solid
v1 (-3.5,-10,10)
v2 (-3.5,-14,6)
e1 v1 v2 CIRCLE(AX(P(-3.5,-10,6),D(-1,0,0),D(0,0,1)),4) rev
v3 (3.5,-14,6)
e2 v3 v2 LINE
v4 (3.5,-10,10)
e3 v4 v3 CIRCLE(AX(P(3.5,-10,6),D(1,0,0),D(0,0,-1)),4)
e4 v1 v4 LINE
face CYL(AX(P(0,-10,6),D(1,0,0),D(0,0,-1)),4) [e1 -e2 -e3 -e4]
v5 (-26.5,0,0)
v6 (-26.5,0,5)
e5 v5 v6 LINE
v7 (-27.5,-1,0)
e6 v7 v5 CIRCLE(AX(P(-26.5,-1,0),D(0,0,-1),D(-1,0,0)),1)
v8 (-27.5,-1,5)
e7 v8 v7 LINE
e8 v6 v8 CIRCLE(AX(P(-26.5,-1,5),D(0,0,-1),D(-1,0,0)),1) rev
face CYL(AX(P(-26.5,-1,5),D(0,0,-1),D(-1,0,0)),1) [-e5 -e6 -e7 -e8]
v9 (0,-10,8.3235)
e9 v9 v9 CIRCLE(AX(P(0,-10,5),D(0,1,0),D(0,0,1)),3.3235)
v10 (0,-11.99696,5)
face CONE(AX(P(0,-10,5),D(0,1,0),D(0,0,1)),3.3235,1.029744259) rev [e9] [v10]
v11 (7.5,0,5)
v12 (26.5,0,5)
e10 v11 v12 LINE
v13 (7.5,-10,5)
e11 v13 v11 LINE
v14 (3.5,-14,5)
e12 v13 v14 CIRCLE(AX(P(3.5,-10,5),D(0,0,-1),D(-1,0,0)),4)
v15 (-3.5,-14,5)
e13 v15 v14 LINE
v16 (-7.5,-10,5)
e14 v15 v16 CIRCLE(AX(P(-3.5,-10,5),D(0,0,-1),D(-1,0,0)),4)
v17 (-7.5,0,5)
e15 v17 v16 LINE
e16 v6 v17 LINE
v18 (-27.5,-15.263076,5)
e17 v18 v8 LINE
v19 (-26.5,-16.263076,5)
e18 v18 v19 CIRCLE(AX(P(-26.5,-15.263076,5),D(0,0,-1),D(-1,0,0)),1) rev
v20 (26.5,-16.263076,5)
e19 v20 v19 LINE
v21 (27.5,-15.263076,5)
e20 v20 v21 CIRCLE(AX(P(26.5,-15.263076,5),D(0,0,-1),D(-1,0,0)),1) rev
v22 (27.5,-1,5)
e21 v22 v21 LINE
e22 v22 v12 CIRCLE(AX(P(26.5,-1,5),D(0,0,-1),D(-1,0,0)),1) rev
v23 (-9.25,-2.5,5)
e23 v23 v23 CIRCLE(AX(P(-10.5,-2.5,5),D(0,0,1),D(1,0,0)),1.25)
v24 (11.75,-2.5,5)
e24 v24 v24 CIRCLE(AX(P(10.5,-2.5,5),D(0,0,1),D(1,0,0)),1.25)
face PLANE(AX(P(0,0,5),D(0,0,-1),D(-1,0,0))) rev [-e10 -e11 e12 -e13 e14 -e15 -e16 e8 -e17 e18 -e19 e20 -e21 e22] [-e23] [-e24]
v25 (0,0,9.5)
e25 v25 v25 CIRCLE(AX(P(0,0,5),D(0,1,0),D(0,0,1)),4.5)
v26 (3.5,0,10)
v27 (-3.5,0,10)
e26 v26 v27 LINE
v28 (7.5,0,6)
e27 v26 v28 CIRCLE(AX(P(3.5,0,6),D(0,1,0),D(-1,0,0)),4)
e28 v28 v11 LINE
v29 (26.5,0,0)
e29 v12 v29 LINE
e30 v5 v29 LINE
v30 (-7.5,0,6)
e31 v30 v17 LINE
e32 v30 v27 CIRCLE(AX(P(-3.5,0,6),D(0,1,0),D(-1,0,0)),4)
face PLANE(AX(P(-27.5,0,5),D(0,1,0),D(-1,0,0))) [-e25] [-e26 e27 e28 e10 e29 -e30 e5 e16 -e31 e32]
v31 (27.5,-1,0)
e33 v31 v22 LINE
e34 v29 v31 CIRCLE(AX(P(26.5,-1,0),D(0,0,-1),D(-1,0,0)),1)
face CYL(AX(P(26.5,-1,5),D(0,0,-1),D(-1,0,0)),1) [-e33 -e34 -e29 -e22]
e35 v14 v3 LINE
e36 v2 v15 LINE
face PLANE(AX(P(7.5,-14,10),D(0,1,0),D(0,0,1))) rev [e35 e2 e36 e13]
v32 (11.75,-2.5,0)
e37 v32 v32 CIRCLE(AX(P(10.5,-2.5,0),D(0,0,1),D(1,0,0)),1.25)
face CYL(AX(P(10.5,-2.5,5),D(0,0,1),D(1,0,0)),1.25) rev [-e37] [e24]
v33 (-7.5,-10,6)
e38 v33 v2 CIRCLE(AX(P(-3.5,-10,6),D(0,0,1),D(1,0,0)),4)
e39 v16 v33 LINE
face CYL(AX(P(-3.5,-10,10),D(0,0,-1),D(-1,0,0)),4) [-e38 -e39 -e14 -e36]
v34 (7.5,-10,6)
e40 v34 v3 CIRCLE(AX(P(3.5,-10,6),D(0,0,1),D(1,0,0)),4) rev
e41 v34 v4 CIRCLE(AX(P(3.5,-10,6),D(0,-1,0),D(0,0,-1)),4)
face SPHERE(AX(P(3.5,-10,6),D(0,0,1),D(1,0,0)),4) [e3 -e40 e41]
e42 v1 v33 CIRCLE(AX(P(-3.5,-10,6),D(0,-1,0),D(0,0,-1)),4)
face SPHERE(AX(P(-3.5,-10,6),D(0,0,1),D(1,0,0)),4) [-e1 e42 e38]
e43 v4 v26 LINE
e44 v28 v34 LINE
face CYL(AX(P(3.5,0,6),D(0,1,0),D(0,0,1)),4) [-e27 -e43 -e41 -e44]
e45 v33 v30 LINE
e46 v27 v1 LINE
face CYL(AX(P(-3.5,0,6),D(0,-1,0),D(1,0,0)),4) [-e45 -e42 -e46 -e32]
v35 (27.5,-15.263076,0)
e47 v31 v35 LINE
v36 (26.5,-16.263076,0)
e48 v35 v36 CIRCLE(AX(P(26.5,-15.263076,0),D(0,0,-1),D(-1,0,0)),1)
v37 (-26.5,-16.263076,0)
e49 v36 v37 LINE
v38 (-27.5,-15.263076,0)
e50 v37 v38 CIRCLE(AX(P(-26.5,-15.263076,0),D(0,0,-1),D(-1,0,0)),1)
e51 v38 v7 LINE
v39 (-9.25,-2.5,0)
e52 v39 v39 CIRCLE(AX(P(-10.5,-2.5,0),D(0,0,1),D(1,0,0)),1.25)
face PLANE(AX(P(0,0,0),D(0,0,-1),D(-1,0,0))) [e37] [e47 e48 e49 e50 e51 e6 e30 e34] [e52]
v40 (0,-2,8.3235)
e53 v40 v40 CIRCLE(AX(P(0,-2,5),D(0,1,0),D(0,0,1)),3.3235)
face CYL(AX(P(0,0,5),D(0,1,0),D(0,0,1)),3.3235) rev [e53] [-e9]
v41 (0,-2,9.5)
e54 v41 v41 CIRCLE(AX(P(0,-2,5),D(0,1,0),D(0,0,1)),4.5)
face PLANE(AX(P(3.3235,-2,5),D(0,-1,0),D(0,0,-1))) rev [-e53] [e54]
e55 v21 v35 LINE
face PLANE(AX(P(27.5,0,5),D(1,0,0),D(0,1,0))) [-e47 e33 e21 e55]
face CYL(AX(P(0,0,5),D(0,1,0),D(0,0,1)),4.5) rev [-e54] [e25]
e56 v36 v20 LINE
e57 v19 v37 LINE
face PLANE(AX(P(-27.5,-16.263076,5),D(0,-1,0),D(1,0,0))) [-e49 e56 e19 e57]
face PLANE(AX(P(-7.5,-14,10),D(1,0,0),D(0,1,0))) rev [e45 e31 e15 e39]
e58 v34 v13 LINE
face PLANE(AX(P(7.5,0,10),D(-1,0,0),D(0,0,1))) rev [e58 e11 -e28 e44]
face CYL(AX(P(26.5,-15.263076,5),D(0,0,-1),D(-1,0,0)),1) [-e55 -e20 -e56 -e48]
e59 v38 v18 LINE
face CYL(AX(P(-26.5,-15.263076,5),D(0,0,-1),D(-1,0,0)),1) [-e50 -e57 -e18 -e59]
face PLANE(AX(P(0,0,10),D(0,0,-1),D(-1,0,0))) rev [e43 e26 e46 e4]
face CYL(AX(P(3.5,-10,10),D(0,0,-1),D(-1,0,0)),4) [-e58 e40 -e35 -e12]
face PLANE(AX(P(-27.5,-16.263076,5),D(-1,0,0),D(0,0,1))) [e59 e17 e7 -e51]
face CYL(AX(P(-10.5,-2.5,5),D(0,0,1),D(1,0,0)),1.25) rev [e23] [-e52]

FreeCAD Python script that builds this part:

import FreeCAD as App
import Part
import Sketcher
from FreeCAD import Vector
Q = App.Units.Quantity


def edges_at(feature, points):
    """Names of the edges that pass closest to the given points."""
    edges = feature.Shape.Edges
    near = lambda p: min(range(len(edges)), key=lambda i: edges[i].distToShape(Part.Vertex(*p))[0])
    return sorted({f"Edge{near(p) + 1}" for p in points})


def add_polygon(sketch, points):
    """Adds a closed chain of lines whose ends are joined by coincident constraints."""
    first, n = sketch.GeometryCount, len(points)
    for a, b in zip(points, points[1:] + points[:1]):
        sketch.addGeometry(Part.LineSegment(App.Vector(*a, 0), App.Vector(*b, 0)), False)
    for i in range(n):
        sketch.addConstraint(Sketcher.Constraint("Coincident", first + i, 2, first + (i + 1) % n, 1))

doc = App.newDocument("Part")
body = doc.addObject("PartDesign::Body", "Body")

sketch1 = body.newObject("Sketcher::SketchObject", "Sketch")
sketch1.AttachmentSupport = (doc.getObject("XY_Plane"), [""])
sketch1.MapMode = "FlatFace"
add_polygon(sketch1, [(28, 0), (28, -16), (-28, -16), (-28, 0)])
sketch1.addConstraint(Sketcher.Constraint("Vertical", 0))
sketch1.addConstraint(Sketcher.Constraint("Horizontal", 1))
sketch1.addConstraint(Sketcher.Constraint("Vertical", 2))
sketch1.addConstraint(Sketcher.Constraint("Horizontal", 3))
sketch1.addConstraint(Sketcher.Constraint("Symmetric", 2, 2, 3, 2, -1, 1))
sketch1.addConstraint(Sketcher.Constraint("DistanceX", 1, 2, 1, 1, Q("55 mm")))
sketch1.addConstraint(Sketcher.Constraint("DistanceY", 0, 2, 0, 1, Q("16.263076 mm")))
pad1 = body.newObject("PartDesign::Pad", "Pad")
pad1.Profile = sketch1
pad1.Length = 5

sketch2 = body.newObject("Sketcher::SketchObject", "Sketch001")
sketch2.AttachmentSupport = (doc.getObject("XY_Plane"), [""])
sketch2.MapMode = "FlatFace"
sketch2.AttachmentOffset = App.Placement(Vector(0, 0, 5), App.Rotation())
add_polygon(sketch2, [(-8, 0), (-8, -14), (8, -14), (8, 0)])
sketch2.addConstraint(Sketcher.Constraint("Vertical", 0))
sketch2.addConstraint(Sketcher.Constraint("Horizontal", 1))
sketch2.addConstraint(Sketcher.Constraint("Vertical", 2))
sketch2.addConstraint(Sketcher.Constraint("Horizontal", 3))
sketch2.addConstraint(Sketcher.Constraint("Symmetric", 2, 2, 3, 2, -1, 1))
sketch2.addConstraint(Sketcher.Constraint("DistanceX", 1, 1, 1, 2, Q("15 mm")))
sketch2.addConstraint(Sketcher.Constraint("DistanceY", 0, 2, 0, 1, Q("14 mm")))
pad2 = body.newObject("PartDesign::Pad", "Pad001")
pad2.Profile = sketch2
pad2.Length = 5

sketch3 = body.newObject("Sketcher::SketchObject", "Sketch002")
sketch3.AttachmentSupport = (doc.getObject("XZ_Plane"), [""])
sketch3.MapMode = "FlatFace"
sketch3.addGeometry(Part.Circle(Vector(0, 5, 0), Vector(0, 0, 1), 3.3), False)
sketch3.addConstraint(Sketcher.Constraint("PointOnObject", 0, 3, -2))
sketch3.addConstraint(Sketcher.Constraint("Diameter", 0, Q("6.647 mm")))
sketch3.addConstraint(Sketcher.Constraint("DistanceY", -1, 1, 0, 3, Q("5 mm")))
doc.recompute()
hole = body.newObject("PartDesign::Hole", "Hole")
hole.Profile = sketch3
hole.ThreadType = "None"
hole.Diameter = 6.647
hole.DepthType = "Dimension"
hole.Depth = 10
hole.DrillPoint = "Angled"
hole.DrillPointAngle = 118
hole.HoleCutType = "Counterbore"
hole.HoleCutDiameter = 9
hole.HoleCutDepth = 2
hole.Reversed = True
doc.recompute()

fillet = body.newObject("PartDesign::Fillet", "Fillet")
fillet.Base = (hole, edges_at(hole, [
    (27.5, 0, 2.5),
    (-27.5, 0, 2.5),
    (27.5, -16.263, 2.5),
    (-27.5, -16.263, 2.5),
]))
fillet.Radius = 1
doc.recompute()

fillet2 = body.newObject("PartDesign::Fillet", "Fillet001")
fillet2.Base = (fillet, edges_at(fillet, [
    (7.5, -14, 7.5),
    (7.5, -7, 10),
    (-7.5, -14, 7.5),
    (0, -14, 10),
    (-7.5, -7, 10),
]))
fillet2.Radius = 4

sketch4 = body.newObject("Sketcher::SketchObject", "Sketch003")
sketch4.AttachmentSupport = (doc.getObject("XY_Plane"), [""])
sketch4.MapMode = "FlatFace"
sketch4.AttachmentOffset = App.Placement(Vector(0, 0, 5), App.Rotation())
sketch4.addGeometry(Part.Circle(Vector(-10.5, -2.5, 0), Vector(0, 0, 1), 1.2), False)
sketch4.addGeometry(Part.Circle(Vector(10.5, -2.5, 0), Vector(0, 0, 1), 1.2), False)
sketch4.addConstraint(Sketcher.Constraint("Equal", 0, 1))
sketch4.addConstraint(Sketcher.Constraint("Symmetric", 0, 3, 1, 3, -2))
sketch4.addConstraint(Sketcher.Constraint("Diameter", 0, Q("2.5 mm")))
sketch4.addConstraint(Sketcher.Constraint("DistanceX", 0, 3, 1, 3, Q("21 mm")))
sketch4.addConstraint(Sketcher.Constraint("DistanceY", 0, 3, -1, 1, Q("2.5 mm")))
doc.recompute()
hole2 = body.newObject("PartDesign::Hole", "Hole001")
hole2.Profile = sketch4
hole2.ThreadType = "None"
hole2.Diameter = 2.5
hole2.DepthType = "ThroughAll"

doc.recompute()
